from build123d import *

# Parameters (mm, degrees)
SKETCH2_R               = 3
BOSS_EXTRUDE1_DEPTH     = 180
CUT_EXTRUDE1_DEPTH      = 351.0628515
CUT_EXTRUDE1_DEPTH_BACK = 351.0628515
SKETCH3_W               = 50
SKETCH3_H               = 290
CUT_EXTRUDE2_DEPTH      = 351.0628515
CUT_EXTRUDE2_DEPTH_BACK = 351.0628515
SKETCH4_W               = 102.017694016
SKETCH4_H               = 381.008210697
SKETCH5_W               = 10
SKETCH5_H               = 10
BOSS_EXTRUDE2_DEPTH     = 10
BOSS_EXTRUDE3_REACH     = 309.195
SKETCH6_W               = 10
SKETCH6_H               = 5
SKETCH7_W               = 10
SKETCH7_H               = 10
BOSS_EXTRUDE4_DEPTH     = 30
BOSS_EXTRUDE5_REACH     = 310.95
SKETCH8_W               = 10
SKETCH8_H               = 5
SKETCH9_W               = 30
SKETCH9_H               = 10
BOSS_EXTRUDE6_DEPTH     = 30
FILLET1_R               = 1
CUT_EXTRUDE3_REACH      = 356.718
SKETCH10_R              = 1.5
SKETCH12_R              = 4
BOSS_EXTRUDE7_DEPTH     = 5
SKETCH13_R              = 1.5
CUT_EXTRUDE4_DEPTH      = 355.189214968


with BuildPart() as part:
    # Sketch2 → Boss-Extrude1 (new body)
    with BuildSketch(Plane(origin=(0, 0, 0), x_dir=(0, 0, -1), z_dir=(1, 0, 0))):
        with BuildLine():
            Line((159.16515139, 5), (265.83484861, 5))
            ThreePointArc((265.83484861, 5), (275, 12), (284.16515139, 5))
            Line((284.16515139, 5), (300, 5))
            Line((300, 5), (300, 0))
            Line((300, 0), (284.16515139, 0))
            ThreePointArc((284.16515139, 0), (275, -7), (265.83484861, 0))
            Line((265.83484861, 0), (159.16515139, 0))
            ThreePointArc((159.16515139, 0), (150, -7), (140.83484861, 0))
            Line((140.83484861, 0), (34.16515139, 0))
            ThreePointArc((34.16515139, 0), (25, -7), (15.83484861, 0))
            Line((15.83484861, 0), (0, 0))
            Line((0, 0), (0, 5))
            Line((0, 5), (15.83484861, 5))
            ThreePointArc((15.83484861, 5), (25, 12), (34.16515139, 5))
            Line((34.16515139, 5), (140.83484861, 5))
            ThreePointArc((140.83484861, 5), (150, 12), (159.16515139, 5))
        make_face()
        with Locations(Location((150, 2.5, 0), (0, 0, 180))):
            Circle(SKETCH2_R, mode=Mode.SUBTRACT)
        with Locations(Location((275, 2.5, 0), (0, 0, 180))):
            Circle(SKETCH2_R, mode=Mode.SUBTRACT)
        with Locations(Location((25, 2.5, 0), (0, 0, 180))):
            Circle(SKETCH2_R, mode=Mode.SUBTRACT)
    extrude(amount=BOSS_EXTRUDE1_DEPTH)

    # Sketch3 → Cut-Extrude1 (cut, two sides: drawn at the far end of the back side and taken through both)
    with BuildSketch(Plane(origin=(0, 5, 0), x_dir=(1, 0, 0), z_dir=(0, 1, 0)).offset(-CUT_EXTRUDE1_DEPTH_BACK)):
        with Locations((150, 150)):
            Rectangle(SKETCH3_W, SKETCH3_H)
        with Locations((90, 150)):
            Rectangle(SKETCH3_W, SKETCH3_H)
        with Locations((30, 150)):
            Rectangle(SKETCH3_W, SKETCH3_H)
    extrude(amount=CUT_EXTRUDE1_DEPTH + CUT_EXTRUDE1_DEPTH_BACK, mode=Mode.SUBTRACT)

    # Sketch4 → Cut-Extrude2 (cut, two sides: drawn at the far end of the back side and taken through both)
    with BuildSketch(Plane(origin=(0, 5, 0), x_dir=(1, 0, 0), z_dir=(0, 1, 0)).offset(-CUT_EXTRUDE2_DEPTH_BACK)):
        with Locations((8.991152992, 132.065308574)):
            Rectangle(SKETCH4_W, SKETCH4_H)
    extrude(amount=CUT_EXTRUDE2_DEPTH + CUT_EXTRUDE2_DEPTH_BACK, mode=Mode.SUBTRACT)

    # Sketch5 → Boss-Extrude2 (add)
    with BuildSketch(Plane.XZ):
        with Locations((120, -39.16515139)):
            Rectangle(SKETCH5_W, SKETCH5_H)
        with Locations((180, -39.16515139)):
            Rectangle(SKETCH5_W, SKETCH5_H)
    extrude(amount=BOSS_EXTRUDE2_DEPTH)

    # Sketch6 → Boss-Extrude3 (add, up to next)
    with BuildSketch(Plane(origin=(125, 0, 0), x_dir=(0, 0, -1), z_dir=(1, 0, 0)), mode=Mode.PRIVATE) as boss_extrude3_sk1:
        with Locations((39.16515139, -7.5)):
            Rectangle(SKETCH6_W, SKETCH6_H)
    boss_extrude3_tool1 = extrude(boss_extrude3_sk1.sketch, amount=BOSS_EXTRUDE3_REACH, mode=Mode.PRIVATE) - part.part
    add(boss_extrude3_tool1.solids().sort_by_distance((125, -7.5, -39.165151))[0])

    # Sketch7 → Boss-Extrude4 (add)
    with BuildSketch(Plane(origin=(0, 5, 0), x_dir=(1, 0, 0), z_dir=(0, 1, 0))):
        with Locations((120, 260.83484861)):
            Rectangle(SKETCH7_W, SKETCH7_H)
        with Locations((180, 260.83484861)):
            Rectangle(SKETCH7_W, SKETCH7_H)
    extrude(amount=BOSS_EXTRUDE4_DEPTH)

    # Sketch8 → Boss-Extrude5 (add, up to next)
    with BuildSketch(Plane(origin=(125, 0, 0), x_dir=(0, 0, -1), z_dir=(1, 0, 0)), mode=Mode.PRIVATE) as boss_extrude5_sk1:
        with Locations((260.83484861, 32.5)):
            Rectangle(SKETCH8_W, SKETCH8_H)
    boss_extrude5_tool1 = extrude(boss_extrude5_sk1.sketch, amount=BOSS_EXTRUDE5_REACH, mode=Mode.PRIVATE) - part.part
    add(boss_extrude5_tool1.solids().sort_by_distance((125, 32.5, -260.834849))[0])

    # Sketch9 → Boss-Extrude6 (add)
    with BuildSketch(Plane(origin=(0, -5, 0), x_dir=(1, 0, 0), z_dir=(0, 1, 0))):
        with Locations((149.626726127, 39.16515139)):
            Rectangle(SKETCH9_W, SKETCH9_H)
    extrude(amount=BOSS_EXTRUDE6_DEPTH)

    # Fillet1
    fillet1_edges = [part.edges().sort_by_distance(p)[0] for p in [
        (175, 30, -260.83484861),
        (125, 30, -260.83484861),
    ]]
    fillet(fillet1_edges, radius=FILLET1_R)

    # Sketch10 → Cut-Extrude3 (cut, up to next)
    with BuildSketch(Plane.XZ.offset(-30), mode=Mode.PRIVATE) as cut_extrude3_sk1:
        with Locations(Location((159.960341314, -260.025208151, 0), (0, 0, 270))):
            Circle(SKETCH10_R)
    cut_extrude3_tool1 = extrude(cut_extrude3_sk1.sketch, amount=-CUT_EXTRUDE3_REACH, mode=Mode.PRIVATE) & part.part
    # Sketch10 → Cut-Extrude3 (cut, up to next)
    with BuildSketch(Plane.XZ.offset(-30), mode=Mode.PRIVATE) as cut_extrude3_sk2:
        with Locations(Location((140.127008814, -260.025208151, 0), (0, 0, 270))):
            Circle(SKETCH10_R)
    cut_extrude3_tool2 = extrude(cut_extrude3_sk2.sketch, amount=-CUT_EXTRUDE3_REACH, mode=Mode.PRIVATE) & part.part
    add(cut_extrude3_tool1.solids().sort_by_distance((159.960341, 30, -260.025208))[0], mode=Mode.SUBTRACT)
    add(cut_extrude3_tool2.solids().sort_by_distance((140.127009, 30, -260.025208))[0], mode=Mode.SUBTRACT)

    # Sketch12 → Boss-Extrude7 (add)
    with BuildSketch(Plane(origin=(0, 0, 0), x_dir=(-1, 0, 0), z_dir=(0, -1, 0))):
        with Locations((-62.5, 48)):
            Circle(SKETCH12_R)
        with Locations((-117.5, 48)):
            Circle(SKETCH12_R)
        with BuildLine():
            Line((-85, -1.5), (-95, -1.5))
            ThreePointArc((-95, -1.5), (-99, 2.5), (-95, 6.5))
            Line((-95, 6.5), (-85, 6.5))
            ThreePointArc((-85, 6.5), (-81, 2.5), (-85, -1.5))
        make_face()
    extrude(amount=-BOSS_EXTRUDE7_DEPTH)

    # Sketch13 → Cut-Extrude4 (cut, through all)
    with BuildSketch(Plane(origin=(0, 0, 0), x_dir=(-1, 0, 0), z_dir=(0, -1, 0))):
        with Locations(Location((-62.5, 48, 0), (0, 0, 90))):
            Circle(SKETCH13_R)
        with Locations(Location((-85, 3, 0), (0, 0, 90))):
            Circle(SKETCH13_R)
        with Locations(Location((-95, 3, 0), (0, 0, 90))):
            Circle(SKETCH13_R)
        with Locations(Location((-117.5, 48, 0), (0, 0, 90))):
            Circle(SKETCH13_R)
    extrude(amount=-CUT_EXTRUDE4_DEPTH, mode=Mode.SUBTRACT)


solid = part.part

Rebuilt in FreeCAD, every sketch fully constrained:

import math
import FreeCAD as App
import Part
import Sketcher
Q = App.Units.Quantity


def edges_at(feature, points):
    """Names of the edges that pass closest to the given points."""
    edges = feature.Shape.Edges
    near = lambda p: min(range(len(edges)), key=lambda i: edges[i].distToShape(Part.Vertex(*p))[0])
    return sorted({f"Edge{near(p) + 1}" for p in points})

doc = App.newDocument("Part")
body = doc.addObject("PartDesign::Body", "Body")

sketch1 = body.newObject("Sketcher::SketchObject", "Sketch")
sketch1.AttachmentSupport = (doc.getObject("YZ_Plane"), [""])
sketch1.MapMode = "FlatFace"
sketch1.addGeometry(Part.LineSegment(App.Vector(5, -265.8, 0), App.Vector(5, -159.2, 0)), False)
sketch1.addGeometry(Part.ArcOfCircle(Part.Circle(App.Vector(2.5, -150, 0), App.Vector(0, 0, 1), 9.5), math.radians(-75), math.radians(75)), False)
sketch1.addGeometry(Part.LineSegment(App.Vector(5, -140.8, 0), App.Vector(5, -34.2, 0)), False)
sketch1.addGeometry(Part.ArcOfCircle(Part.Circle(App.Vector(2.5, -25, 0), App.Vector(0, 0, 1), 9.5), math.radians(-75), math.radians(75)), False)
sketch1.addGeometry(Part.LineSegment(App.Vector(5, -15.8, 0), App.Vector(5, 0, 0)), False)
sketch1.addGeometry(Part.LineSegment(App.Vector(5, 0, 0), App.Vector(0, 0, 0)), False)
sketch1.addGeometry(Part.LineSegment(App.Vector(0, 0, 0), App.Vector(0, -15.8, 0)), False)
sketch1.addGeometry(Part.ArcOfCircle(Part.Circle(App.Vector(2.5, -25, 0), App.Vector(0, 0, 1), 9.5), math.radians(105), math.radians(255)), False)
sketch1.addGeometry(Part.LineSegment(App.Vector(0, -34.2, 0), App.Vector(0, -140.8, 0)), False)
sketch1.addGeometry(Part.ArcOfCircle(Part.Circle(App.Vector(2.5, -150, 0), App.Vector(0, 0, 1), 9.5), math.radians(105), math.radians(255)), False)
sketch1.addGeometry(Part.LineSegment(App.Vector(0, -159.2, 0), App.Vector(0, -265.8, 0)), False)
sketch1.addGeometry(Part.ArcOfCircle(Part.Circle(App.Vector(2.5, -275, 0), App.Vector(0, 0, 1), 9.5), math.radians(105), math.radians(255)), False)
sketch1.addGeometry(Part.LineSegment(App.Vector(0, -284.2, 0), App.Vector(0, -300, 0)), False)
sketch1.addGeometry(Part.LineSegment(App.Vector(0, -300, 0), App.Vector(5, -300, 0)), False)
sketch1.addGeometry(Part.LineSegment(App.Vector(5, -300, 0), App.Vector(5, -284.2, 0)), False)
sketch1.addGeometry(Part.ArcOfCircle(Part.Circle(App.Vector(2.5, -275, 0), App.Vector(0, 0, 1), 9.5), math.radians(-75), math.radians(75)), False)
sketch1.addGeometry(Part.Circle(App.Vector(2.5, -275, 0), App.Vector(0, 0, 1), 3), False)
sketch1.addGeometry(Part.Circle(App.Vector(2.5, -150, 0), App.Vector(0, 0, 1), 3), False)
sketch1.addGeometry(Part.Circle(App.Vector(2.5, -25, 0), App.Vector(0, 0, 1), 3), False)
sketch1.addConstraint(Sketcher.Constraint("Coincident", 0, 2, 1, 1))
sketch1.addConstraint(Sketcher.Constraint("Coincident", 1, 2, 2, 1))
sketch1.addConstraint(Sketcher.Constraint("Coincident", 2, 2, 3, 1))
sketch1.addConstraint(Sketcher.Constraint("Coincident", 3, 2, 4, 1))
sketch1.addConstraint(Sketcher.Constraint("Coincident", 4, 2, 5, 1))
sketch1.addConstraint(Sketcher.Constraint("Coincident", 5, 2, 6, 1))
sketch1.addConstraint(Sketcher.Constraint("Coincident", 6, 2, 7, 1))
sketch1.addConstraint(Sketcher.Constraint("Coincident", 7, 2, 8, 1))
sketch1.addConstraint(Sketcher.Constraint("Coincident", 8, 2, 9, 1))
sketch1.addConstraint(Sketcher.Constraint("Coincident", 9, 2, 10, 1))
sketch1.addConstraint(Sketcher.Constraint("Coincident", 10, 2, 11, 1))
sketch1.addConstraint(Sketcher.Constraint("Coincident", 11, 2, 12, 1))
sketch1.addConstraint(Sketcher.Constraint("Coincident", 12, 2, 13, 1))
sketch1.addConstraint(Sketcher.Constraint("Coincident", 13, 2, 14, 1))
sketch1.addConstraint(Sketcher.Constraint("Coincident", 14, 2, 15, 1))
sketch1.addConstraint(Sketcher.Constraint("Coincident", 15, 2, 0, 1))
sketch1.addConstraint(Sketcher.Constraint("Vertical", 0))
sketch1.addConstraint(Sketcher.Constraint("Vertical", 2))
sketch1.addConstraint(Sketcher.Constraint("Vertical", 4))
sketch1.addConstraint(Sketcher.Constraint("Horizontal", 5))
sketch1.addConstraint(Sketcher.Constraint("Vertical", 6))
sketch1.addConstraint(Sketcher.Constraint("Vertical", 8))
sketch1.addConstraint(Sketcher.Constraint("Vertical", 10))
sketch1.addConstraint(Sketcher.Constraint("Vertical", 12))
sketch1.addConstraint(Sketcher.Constraint("Horizontal", 13))
sketch1.addConstraint(Sketcher.Constraint("Vertical", 14))
sketch1.addConstraint(Sketcher.Constraint("Coincident", 5, 2, -1, 1))
sketch1.addConstraint(Sketcher.Constraint("Coincident", 7, 3, 3, 3))
sketch1.addConstraint(Sketcher.Constraint("Coincident", 9, 3, 1, 3))
sketch1.addConstraint(Sketcher.Constraint("Coincident", 15, 3, 11, 3))
sketch1.addConstraint(Sketcher.Constraint("Coincident", 16, 3, 11, 3))
sketch1.addConstraint(Sketcher.Constraint("Coincident", 17, 3, 1, 3))
sketch1.addConstraint(Sketcher.Constraint("Coincident", 18, 3, 3, 3))
sketch1.addConstraint(Sketcher.Constraint("Equal", 1, 3))
sketch1.addConstraint(Sketcher.Constraint("Equal", 3, 7))
sketch1.addConstraint(Sketcher.Constraint("Equal", 7, 9))
sketch1.addConstraint(Sketcher.Constraint("Equal", 9, 11))
sketch1.addConstraint(Sketcher.Constraint("Equal", 11, 15))
sketch1.addConstraint(Sketcher.Constraint("Equal", 16, 17))
sketch1.addConstraint(Sketcher.Constraint("Equal", 17, 18))
sketch1.addConstraint(Sketcher.Constraint("PointOnObject", 7, 2, -2))
sketch1.addConstraint(Sketcher.Constraint("PointOnObject", 9, 2, -2))
sketch1.addConstraint(Sketcher.Constraint("PointOnObject", 11, 2, -2))
sketch1.addConstraint(Sketcher.Constraint("Horizontal", 3, 2, 6, 2))
sketch1.addConstraint(Sketcher.Constraint("Horizontal", 2, 2, 7, 2))
sketch1.addConstraint(Sketcher.Constraint("Horizontal", 1, 2, 8, 2))
sketch1.addConstraint(Sketcher.Constraint("Horizontal", 0, 2, 9, 2))
sketch1.addConstraint(Sketcher.Constraint("Horizontal", 11, 2, 14, 2))
sketch1.addConstraint(Sketcher.Constraint("Horizontal", 10, 2, 15, 2))
sketch1.addConstraint(Sketcher.Constraint("Equal", 0, 2))
sketch1.addConstraint(Sketcher.Constraint("Equal", 6, 12))
sketch1.addConstraint(Sketcher.Constraint("Diameter", 16, Q("6 mm")))
sketch1.addConstraint(Sketcher.Constraint("Radius", 1, Q("9.5 mm")))
sketch1.addConstraint(Sketcher.Constraint("DistanceX", 5, 2, 5, 1, Q("5 mm")))
sketch1.addConstraint(Sketcher.Constraint("DistanceY", 1, 3, -1, 1, Q("150 mm")))
sketch1.addConstraint(Sketcher.Constraint("DistanceY", 3, 3, -1, 1, Q("25 mm")))
pad1 = body.newObject("PartDesign::Pad", "Pad")
pad1.Profile = sketch1
pad1.Length = 180

sketch2 = body.newObject("Sketcher::SketchObject", "Sketch001")
sketch2.AttachmentSupport = (doc.getObject("XZ_Plane"), [""])
sketch2.MapMode = "FlatFace"
sketch2.AttachmentOffset = App.Placement(App.Vector(0, 0, -5), App.Rotation())
sketch2.addGeometry(Part.LineSegment(App.Vector(125, -295, 0), App.Vector(125, -5, 0)), False)
sketch2.addGeometry(Part.LineSegment(App.Vector(125, -5, 0), App.Vector(175, -5, 0)), False)
sketch2.addGeometry(Part.LineSegment(App.Vector(175, -5, 0), App.Vector(175, -295, 0)), False)
sketch2.addGeometry(Part.LineSegment(App.Vector(175, -295, 0), App.Vector(125, -295, 0)), False)
sketch2.addGeometry(Part.LineSegment(App.Vector(65, -295, 0), App.Vector(65, -5, 0)), False)
sketch2.addGeometry(Part.LineSegment(App.Vector(65, -5, 0), App.Vector(115, -5, 0)), False)
sketch2.addGeometry(Part.LineSegment(App.Vector(115, -5, 0), App.Vector(115, -295, 0)), False)
sketch2.addGeometry(Part.LineSegment(App.Vector(115, -295, 0), App.Vector(65, -295, 0)), False)
sketch2.addGeometry(Part.LineSegment(App.Vector(5, -295, 0), App.Vector(5, -5, 0)), False)
sketch2.addGeometry(Part.LineSegment(App.Vector(5, -5, 0), App.Vector(55, -5, 0)), False)
sketch2.addGeometry(Part.LineSegment(App.Vector(55, -5, 0), App.Vector(55, -295, 0)), False)
sketch2.addGeometry(Part.LineSegment(App.Vector(55, -295, 0), App.Vector(5, -295, 0)), False)
sketch2.addConstraint(Sketcher.Constraint("Coincident", 0, 2, 1, 1))
sketch2.addConstraint(Sketcher.Constraint("Coincident", 1, 2, 2, 1))
sketch2.addConstraint(Sketcher.Constraint("Coincident", 2, 2, 3, 1))
sketch2.addConstraint(Sketcher.Constraint("Coincident", 3, 2, 0, 1))
sketch2.addConstraint(Sketcher.Constraint("Coincident", 4, 2, 5, 1))
sketch2.addConstraint(Sketcher.Constraint("Coincident", 5, 2, 6, 1))
sketch2.addConstraint(Sketcher.Constraint("Coincident", 6, 2, 7, 1))
sketch2.addConstraint(Sketcher.Constraint("Coincident", 7, 2, 4, 1))
sketch2.addConstraint(Sketcher.Constraint("Coincident", 8, 2, 9, 1))
sketch2.addConstraint(Sketcher.Constraint("Coincident", 9, 2, 10, 1))
sketch2.addConstraint(Sketcher.Constraint("Coincident", 10, 2, 11, 1))
sketch2.addConstraint(Sketcher.Constraint("Coincident", 11, 2, 8, 1))
sketch2.addConstraint(Sketcher.Constraint("Vertical", 0))
sketch2.addConstraint(Sketcher.Constraint("Horizontal", 1))
sketch2.addConstraint(Sketcher.Constraint("Vertical", 2))
sketch2.addConstraint(Sketcher.Constraint("Horizontal", 3))
sketch2.addConstraint(Sketcher.Constraint("Vertical", 4))
sketch2.addConstraint(Sketcher.Constraint("Horizontal", 5))
sketch2.addConstraint(Sketcher.Constraint("Vertical", 6))
sketch2.addConstraint(Sketcher.Constraint("Horizontal", 7))
sketch2.addConstraint(Sketcher.Constraint("Vertical", 8))
sketch2.addConstraint(Sketcher.Constraint("Horizontal", 9))
sketch2.addConstraint(Sketcher.Constraint("Vertical", 10))
sketch2.addConstraint(Sketcher.Constraint("Horizontal", 11))
sketch2.addConstraint(Sketcher.Constraint("Horizontal", 1, 2, 4, 2))
sketch2.addConstraint(Sketcher.Constraint("Horizontal", 3, 2, 6, 2))
sketch2.addConstraint(Sketcher.Constraint("Horizontal", 5, 2, 8, 2))
sketch2.addConstraint(Sketcher.Constraint("Horizontal", 7, 2, 10, 2))
sketch2.addConstraint(Sketcher.Constraint("Equal", 3, 5))
sketch2.addConstraint(Sketcher.Constraint("Equal", 7, 9))
sketch2.addConstraint(Sketcher.Constraint("DistanceX", 1, 1, 1, 2, Q("50 mm")))
sketch2.addConstraint(Sketcher.Constraint("DistanceY", 0, 1, 0, 2, Q("290 mm")))
sketch2.addConstraint(Sketcher.Constraint("DistanceX", -1, 1, 0, 2, Q("125 mm")))
sketch2.addConstraint(Sketcher.Constraint("DistanceY", 0, 2, -1, 1, Q("5 mm")))
sketch2.addConstraint(Sketcher.Constraint("DistanceX", -1, 1, 4, 2, Q("65 mm")))
sketch2.addConstraint(Sketcher.Constraint("DistanceX", -1, 1, 8, 2, Q("5 mm")))
pocket1 = body.newObject("PartDesign::Pocket", "Pocket")
pocket1.Profile = sketch2
pocket1.Type = "ThroughAll"
pocket1.Midplane = True

sketch3 = body.newObject("Sketcher::SketchObject", "Sketch002")
sketch3.AttachmentSupport = (doc.getObject("XZ_Plane"), [""])
sketch3.MapMode = "FlatFace"
sketch3.AttachmentOffset = App.Placement(App.Vector(0, 0, -5), App.Rotation())
sketch3.addGeometry(Part.LineSegment(App.Vector(-42, -323, 0), App.Vector(-42, 58, 0)), False)
sketch3.addGeometry(Part.LineSegment(App.Vector(-42, 58, 0), App.Vector(60, 58, 0)), False)
sketch3.addGeometry(Part.LineSegment(App.Vector(60, 58, 0), App.Vector(60, -323, 0)), False)
sketch3.addGeometry(Part.LineSegment(App.Vector(60, -323, 0), App.Vector(-42, -323, 0)), False)
sketch3.addConstraint(Sketcher.Constraint("Coincident", 0, 2, 1, 1))
sketch3.addConstraint(Sketcher.Constraint("Coincident", 1, 2, 2, 1))
sketch3.addConstraint(Sketcher.Constraint("Coincident", 2, 2, 3, 1))
sketch3.addConstraint(Sketcher.Constraint("Coincident", 3, 2, 0, 1))
sketch3.addConstraint(Sketcher.Constraint("Vertical", 0))
sketch3.addConstraint(Sketcher.Constraint("Horizontal", 1))
sketch3.addConstraint(Sketcher.Constraint("Vertical", 2))
sketch3.addConstraint(Sketcher.Constraint("Horizontal", 3))
sketch3.addConstraint(Sketcher.Constraint("DistanceX", -1, 1, 1, 2, Q("60 mm")))
sketch3.addConstraint(Sketcher.Constraint("DistanceY", 0, 1, 0, 2, Q("381.008211 mm")))
sketch3.addConstraint(Sketcher.Constraint("DistanceX", 1, 1, 1, 2, Q("102.017694 mm")))
sketch3.addConstraint(Sketcher.Constraint("DistanceY", -1, 1, 0, 2, Q("58.438797 mm")))
pocket2 = body.newObject("PartDesign::Pocket", "Pocket001")
pocket2.Profile = sketch3
pocket2.Type = "ThroughAll"
pocket2.Midplane = True

sketch4 = body.newObject("Sketcher::SketchObject", "Sketch003")
sketch4.AttachmentSupport = (doc.getObject("XZ_Plane"), [""])
sketch4.MapMode = "FlatFace"
sketch4.addGeometry(Part.LineSegment(App.Vector(115, -34, 0), App.Vector(115, -44, 0)), False)
sketch4.addGeometry(Part.LineSegment(App.Vector(115, -44, 0), App.Vector(125, -44, 0)), False)
sketch4.addGeometry(Part.LineSegment(App.Vector(125, -44, 0), App.Vector(125, -34, 0)), False)
sketch4.addGeometry(Part.LineSegment(App.Vector(125, -34, 0), App.Vector(115, -34, 0)), False)
sketch4.addGeometry(Part.LineSegment(App.Vector(175, -34, 0), App.Vector(175, -44, 0)), False)
sketch4.addGeometry(Part.LineSegment(App.Vector(175, -44, 0), App.Vector(185, -44, 0)), False)
sketch4.addGeometry(Part.LineSegment(App.Vector(185, -44, 0), App.Vector(185, -34, 0)), False)
sketch4.addGeometry(Part.LineSegment(App.Vector(185, -34, 0), App.Vector(175, -34, 0)), False)
sketch4.addConstraint(Sketcher.Constraint("Coincident", 0, 2, 1, 1))
sketch4.addConstraint(Sketcher.Constraint("Coincident", 1, 2, 2, 1))
sketch4.addConstraint(Sketcher.Constraint("Coincident", 2, 2, 3, 1))
sketch4.addConstraint(Sketcher.Constraint("Coincident", 3, 2, 0, 1))
sketch4.addConstraint(Sketcher.Constraint("Coincident", 4, 2, 5, 1))
sketch4.addConstraint(Sketcher.Constraint("Coincident", 5, 2, 6, 1))
sketch4.addConstraint(Sketcher.Constraint("Coincident", 6, 2, 7, 1))
sketch4.addConstraint(Sketcher.Constraint("Coincident", 7, 2, 4, 1))
sketch4.addConstraint(Sketcher.Constraint("Vertical", 0))
sketch4.addConstraint(Sketcher.Constraint("Horizontal", 1))
sketch4.addConstraint(Sketcher.Constraint("Vertical", 2))
sketch4.addConstraint(Sketcher.Constraint("Horizontal", 3))
sketch4.addConstraint(Sketcher.Constraint("Vertical", 4))
sketch4.addConstraint(Sketcher.Constraint("Horizontal", 5))
sketch4.addConstraint(Sketcher.Constraint("Vertical", 6))
sketch4.addConstraint(Sketcher.Constraint("Horizontal", 7))
sketch4.addConstraint(Sketcher.Constraint("Horizontal", 1, 2, 4, 2))
sketch4.addConstraint(Sketcher.Constraint("Horizontal", 3, 2, 6, 2))
sketch4.addConstraint(Sketcher.Constraint("Equal", 3, 5))
sketch4.addConstraint(Sketcher.Constraint("Equal", 7, 0))
sketch4.addConstraint(Sketcher.Constraint("DistanceX", 1, 1, 1, 2, Q("10 mm")))
sketch4.addConstraint(Sketcher.Constraint("DistanceX", -1, 1, 0, 2, Q("115 mm")))
sketch4.addConstraint(Sketcher.Constraint("DistanceX", -1, 1, 4, 2, Q("175 mm")))
sketch4.addConstraint(Sketcher.Constraint("DistanceY", 0, 2, -1, 1, Q("44.165151 mm")))
pad2 = body.newObject("PartDesign::Pad", "Pad001")
pad2.Profile = sketch4
pad2.Length = 10

sketch5 = body.newObject("Sketcher::SketchObject", "Sketch004")
sketch5.AttachmentSupport = (doc.getObject("YZ_Plane"), [""])
sketch5.MapMode = "FlatFace"
sketch5.AttachmentOffset = App.Placement(App.Vector(0, 0, 125), App.Rotation())
sketch5.addGeometry(Part.LineSegment(App.Vector(-5, -34, 0), App.Vector(-10, -34, 0)), False)
sketch5.addGeometry(Part.LineSegment(App.Vector(-10, -34, 0), App.Vector(-10, -44, 0)), False)
sketch5.addGeometry(Part.LineSegment(App.Vector(-10, -44, 0), App.Vector(-5, -44, 0)), False)
sketch5.addGeometry(Part.LineSegment(App.Vector(-5, -44, 0), App.Vector(-5, -34, 0)), False)
sketch5.addConstraint(Sketcher.Constraint("Coincident", 0, 2, 1, 1))
sketch5.addConstraint(Sketcher.Constraint("Coincident", 1, 2, 2, 1))
sketch5.addConstraint(Sketcher.Constraint("Coincident", 2, 2, 3, 1))
sketch5.addConstraint(Sketcher.Constraint("Coincident", 3, 2, 0, 1))
sketch5.addConstraint(Sketcher.Constraint("Horizontal", 0))
sketch5.addConstraint(Sketcher.Constraint("Vertical", 1))
sketch5.addConstraint(Sketcher.Constraint("Horizontal", 2))
sketch5.addConstraint(Sketcher.Constraint("Vertical", 3))
sketch5.addConstraint(Sketcher.Constraint("DistanceX", 0, 2, 0, 1, Q("5 mm")))
sketch5.addConstraint(Sketcher.Constraint("DistanceY", 1, 2, 1, 1, Q("10 mm")))
sketch5.addConstraint(Sketcher.Constraint("DistanceX", 0, 2, -1, 1, Q("10 mm")))
sketch5.addConstraint(Sketcher.Constraint("DistanceY", 0, 2, -1, 1, Q("34.165151 mm")))
pad3 = body.newObject("PartDesign::Pad", "Pad002")
pad3.Profile = sketch5
pad3.Type = "UpToFirst"

sketch6 = body.newObject("Sketcher::SketchObject", "Sketch005")
sketch6.AttachmentSupport = (doc.getObject("XZ_Plane"), [""])
sketch6.MapMode = "FlatFace"
sketch6.AttachmentOffset = App.Placement(App.Vector(0, 0, -5), App.Rotation())
sketch6.addGeometry(Part.LineSegment(App.Vector(115, -266, 0), App.Vector(115, -256, 0)), False)
sketch6.addGeometry(Part.LineSegment(App.Vector(115, -256, 0), App.Vector(125, -256, 0)), False)
sketch6.addGeometry(Part.LineSegment(App.Vector(125, -256, 0), App.Vector(125, -266, 0)), False)
sketch6.addGeometry(Part.LineSegment(App.Vector(125, -266, 0), App.Vector(115, -266, 0)), False)
sketch6.addGeometry(Part.LineSegment(App.Vector(175, -266, 0), App.Vector(175, -256, 0)), False)
sketch6.addGeometry(Part.LineSegment(App.Vector(175, -256, 0), App.Vector(185, -256, 0)), False)
sketch6.addGeometry(Part.LineSegment(App.Vector(185, -256, 0), App.Vector(185, -266, 0)), False)
sketch6.addGeometry(Part.LineSegment(App.Vector(185, -266, 0), App.Vector(175, -266, 0)), False)
sketch6.addConstraint(Sketcher.Constraint("Coincident", 0, 2, 1, 1))
sketch6.addConstraint(Sketcher.Constraint("Coincident", 1, 2, 2, 1))
sketch6.addConstraint(Sketcher.Constraint("Coincident", 2, 2, 3, 1))
sketch6.addConstraint(Sketcher.Constraint("Coincident", 3, 2, 0, 1))
sketch6.addConstraint(Sketcher.Constraint("Coincident", 4, 2, 5, 1))
sketch6.addConstraint(Sketcher.Constraint("Coincident", 5, 2, 6, 1))
sketch6.addConstraint(Sketcher.Constraint("Coincident", 6, 2, 7, 1))
sketch6.addConstraint(Sketcher.Constraint("Coincident", 7, 2, 4, 1))
sketch6.addConstraint(Sketcher.Constraint("Vertical", 0))
sketch6.addConstraint(Sketcher.Constraint("Horizontal", 1))
sketch6.addConstraint(Sketcher.Constraint("Vertical", 2))
sketch6.addConstraint(Sketcher.Constraint("Horizontal", 3))
sketch6.addConstraint(Sketcher.Constraint("Vertical", 4))
sketch6.addConstraint(Sketcher.Constraint("Horizontal", 5))
sketch6.addConstraint(Sketcher.Constraint("Vertical", 6))
sketch6.addConstraint(Sketcher.Constraint("Horizontal", 7))
sketch6.addConstraint(Sketcher.Constraint("Horizontal", 1, 2, 4, 2))
sketch6.addConstraint(Sketcher.Constraint("Horizontal", 3, 2, 6, 2))
sketch6.addConstraint(Sketcher.Constraint("Equal", 3, 5))
sketch6.addConstraint(Sketcher.Constraint("Equal", 7, 0))
sketch6.addConstraint(Sketcher.Constraint("DistanceX", 1, 1, 1, 2, Q("10 mm")))
sketch6.addConstraint(Sketcher.Constraint("DistanceX", -1, 1, 0, 2, Q("115 mm")))
sketch6.addConstraint(Sketcher.Constraint("DistanceX", -1, 1, 4, 2, Q("175 mm")))
sketch6.addConstraint(Sketcher.Constraint("DistanceY", 0, 2, -1, 1, Q("255.834849 mm")))
pad4 = body.newObject("PartDesign::Pad", "Pad003")
pad4.Profile = sketch6
pad4.Length = 30
pad4.Reversed = True

sketch7 = body.newObject("Sketcher::SketchObject", "Sketch006")
sketch7.AttachmentSupport = (doc.getObject("YZ_Plane"), [""])
sketch7.MapMode = "FlatFace"
sketch7.AttachmentOffset = App.Placement(App.Vector(0, 0, 125), App.Rotation())
sketch7.addGeometry(Part.LineSegment(App.Vector(35, -256, 0), App.Vector(30, -256, 0)), False)
sketch7.addGeometry(Part.LineSegment(App.Vector(30, -256, 0), App.Vector(30, -266, 0)), False)
sketch7.addGeometry(Part.LineSegment(App.Vector(30, -266, 0), App.Vector(35, -266, 0)), False)
sketch7.addGeometry(Part.LineSegment(App.Vector(35, -266, 0), App.Vector(35, -256, 0)), False)
sketch7.addConstraint(Sketcher.Constraint("Coincident", 0, 2, 1, 1))
sketch7.addConstraint(Sketcher.Constraint("Coincident", 1, 2, 2, 1))
sketch7.addConstraint(Sketcher.Constraint("Coincident", 2, 2, 3, 1))
sketch7.addConstraint(Sketcher.Constraint("Coincident", 3, 2, 0, 1))
sketch7.addConstraint(Sketcher.Constraint("Horizontal", 0))
sketch7.addConstraint(Sketcher.Constraint("Vertical", 1))
sketch7.addConstraint(Sketcher.Constraint("Horizontal", 2))
sketch7.addConstraint(Sketcher.Constraint("Vertical", 3))
sketch7.addConstraint(Sketcher.Constraint("DistanceX", 0, 2, 0, 1, Q("5 mm")))
sketch7.addConstraint(Sketcher.Constraint("DistanceY", 1, 2, 1, 1, Q("10 mm")))
sketch7.addConstraint(Sketcher.Constraint("DistanceX", -1, 1, 0, 2, Q("30 mm")))
sketch7.addConstraint(Sketcher.Constraint("DistanceY", 0, 2, -1, 1, Q("255.834849 mm")))
pad5 = body.newObject("PartDesign::Pad", "Pad004")
pad5.Profile = sketch7
pad5.Type = "UpToFirst"

sketch8 = body.newObject("Sketcher::SketchObject", "Sketch007")
sketch8.AttachmentSupport = (doc.getObject("XZ_Plane"), [""])
sketch8.MapMode = "FlatFace"
sketch8.AttachmentOffset = App.Placement(App.Vector(0, 0, 5), App.Rotation())
sketch8.addGeometry(Part.LineSegment(App.Vector(135, -44, 0), App.Vector(135, -34, 0)), False)
sketch8.addGeometry(Part.LineSegment(App.Vector(135, -34, 0), App.Vector(165, -34, 0)), False)
sketch8.addGeometry(Part.LineSegment(App.Vector(165, -34, 0), App.Vector(165, -44, 0)), False)
sketch8.addGeometry(Part.LineSegment(App.Vector(165, -44, 0), App.Vector(135, -44, 0)), False)
sketch8.addConstraint(Sketcher.Constraint("Coincident", 0, 2, 1, 1))
sketch8.addConstraint(Sketcher.Constraint("Coincident", 1, 2, 2, 1))
sketch8.addConstraint(Sketcher.Constraint("Coincident", 2, 2, 3, 1))
sketch8.addConstraint(Sketcher.Constraint("Coincident", 3, 2, 0, 1))
sketch8.addConstraint(Sketcher.Constraint("Vertical", 0))
sketch8.addConstraint(Sketcher.Constraint("Horizontal", 1))
sketch8.addConstraint(Sketcher.Constraint("Vertical", 2))
sketch8.addConstraint(Sketcher.Constraint("Horizontal", 3))
sketch8.addConstraint(Sketcher.Constraint("DistanceX", 1, 1, 1, 2, Q("30 mm")))
sketch8.addConstraint(Sketcher.Constraint("DistanceY", 0, 1, 0, 2, Q("10 mm")))
sketch8.addConstraint(Sketcher.Constraint("DistanceY", 0, 2, -1, 1, Q("34.165151 mm")))
sketch8.addConstraint(Sketcher.Constraint("DistanceX", -1, 1, 0, 2, Q("134.626726 mm")))
pad6 = body.newObject("PartDesign::Pad", "Pad005")
pad6.Profile = sketch8
pad6.Length = 30
pad6.Reversed = True
doc.recompute()

fillet = body.newObject("PartDesign::Fillet", "Fillet")
fillet.Base = (pad6, edges_at(pad6, [(175, 30, -260.835), (125, 30, -260.835)]))
fillet.Radius = 1

sketch9 = body.newObject("Sketcher::SketchObject", "Sketch008")
sketch9.AttachmentSupport = (doc.getObject("XZ_Plane"), [""])
sketch9.MapMode = "FlatFace"
sketch9.AttachmentOffset = App.Placement(App.Vector(0, 0, -30), App.Rotation())
sketch9.addGeometry(Part.Circle(App.Vector(160, -260, 0), App.Vector(0, 0, 1), 1.5), False)
sketch9.addConstraint(Sketcher.Constraint("Diameter", 0, Q("3 mm")))
sketch9.addConstraint(Sketcher.Constraint("DistanceX", -1, 1, 0, 3, Q("159.960341 mm")))
sketch9.addConstraint(Sketcher.Constraint("DistanceY", 0, 3, -1, 1, Q("260.025208 mm")))
pocket3 = body.newObject("PartDesign::Pocket", "Pocket002")
pocket3.Profile = sketch9
pocket3.Type = "UpToFirst"

sketch10 = body.newObject("Sketcher::SketchObject", "Sketch009")
sketch10.AttachmentSupport = (doc.getObject("XZ_Plane"), [""])
sketch10.MapMode = "FlatFace"
sketch10.AttachmentOffset = App.Placement(App.Vector(0, 0, -30), App.Rotation())
sketch10.addGeometry(Part.Circle(App.Vector(140.1, -260, 0), App.Vector(0, 0, 1), 1.5), False)
sketch10.addConstraint(Sketcher.Constraint("Diameter", 0, Q("3 mm")))
sketch10.addConstraint(Sketcher.Constraint("DistanceX", -1, 1, 0, 3, Q("140.127009 mm")))
sketch10.addConstraint(Sketcher.Constraint("DistanceY", 0, 3, -1, 1, Q("260.025208 mm")))
pocket4 = body.newObject("PartDesign::Pocket", "Pocket003")
pocket4.Profile = sketch10
pocket4.Type = "UpToFirst"

sketch11 = body.newObject("Sketcher::SketchObject", "Sketch010")
sketch11.AttachmentSupport = (doc.getObject("XZ_Plane"), [""])
sketch11.MapMode = "FlatFace"
sketch11.addGeometry(Part.Circle(App.Vector(62.5, -48, 0), App.Vector(0, 0, 1), 4), False)
sketch11.addGeometry(Part.Circle(App.Vector(117.5, -48, 0), App.Vector(0, 0, 1), 4), False)
sketch11.addGeometry(Part.LineSegment(App.Vector(95, 1.5, 0), App.Vector(85, 1.5, 0)), False)
sketch11.addGeometry(Part.ArcOfCircle(Part.Circle(App.Vector(85, -2.5, 0), App.Vector(0, 0, 1), 4), math.radians(90), math.radians(270)), False)
sketch11.addGeometry(Part.LineSegment(App.Vector(85, -6.5, 0), App.Vector(95, -6.5, 0)), False)
sketch11.addGeometry(Part.ArcOfCircle(Part.Circle(App.Vector(95, -2.5, 0), App.Vector(0, 0, 1), 4), math.radians(-90), math.radians(90)), False)
sketch11.addConstraint(Sketcher.Constraint("Tangent", 2, 2, 3, 1))
sketch11.addConstraint(Sketcher.Constraint("Tangent", 3, 2, 4, 1))
sketch11.addConstraint(Sketcher.Constraint("Tangent", 4, 2, 5, 1))
sketch11.addConstraint(Sketcher.Constraint("Tangent", 5, 2, 2, 1))
sketch11.addConstraint(Sketcher.Constraint("Horizontal", 2))
sketch11.addConstraint(Sketcher.Constraint("Horizontal", 4))
sketch11.addConstraint(Sketcher.Constraint("Equal", 0, 1))
sketch11.addConstraint(Sketcher.Constraint("Equal", 1, 3))
sketch11.addConstraint(Sketcher.Constraint("Horizontal", 0, 3, 1, 3))
sketch11.addConstraint(Sketcher.Constraint("Diameter", 0, Q("8 mm")))
sketch11.addConstraint(Sketcher.Constraint("DistanceX", 2, 2, 2, 1, Q("10 mm")))
sketch11.addConstraint(Sketcher.Constraint("DistanceY", 0, 3, -1, 1, Q("48 mm")))
sketch11.addConstraint(Sketcher.Constraint("DistanceX", -1, 1, 3, 3, Q("85 mm")))
sketch11.addConstraint(Sketcher.Constraint("DistanceX", 0, 3, 1, 3, Q("55 mm")))
sketch11.addConstraint(Sketcher.Constraint("DistanceX", -1, 1, 0, 3, Q("62.5 mm")))
sketch11.addConstraint(Sketcher.Constraint("DistanceY", 3, 3, -1, 1, Q("2.5 mm")))
pad7 = body.newObject("PartDesign::Pad", "Pad006")
pad7.Profile = sketch11
pad7.Length = 5
pad7.Reversed = True

sketch12 = body.newObject("Sketcher::SketchObject", "Sketch011")
sketch12.AttachmentSupport = (doc.getObject("XZ_Plane"), [""])
sketch12.MapMode = "FlatFace"
sketch12.addGeometry(Part.Circle(App.Vector(62.5, -48, 0), App.Vector(0, 0, 1), 1.5), False)
sketch12.addGeometry(Part.Circle(App.Vector(85, -3, 0), App.Vector(0, 0, 1), 1.5), False)
sketch12.addGeometry(Part.Circle(App.Vector(95, -3, 0), App.Vector(0, 0, 1), 1.5), False)
sketch12.addGeometry(Part.Circle(App.Vector(117.5, -48, 0), App.Vector(0, 0, 1), 1.5), False)
sketch12.addConstraint(Sketcher.Constraint("Equal", 0, 1))
sketch12.addConstraint(Sketcher.Constraint("Equal", 1, 2))
sketch12.addConstraint(Sketcher.Constraint("Equal", 2, 3))
sketch12.addConstraint(Sketcher.Constraint("Horizontal", 1, 3, 2, 3))
sketch12.addConstraint(Sketcher.Constraint("Horizontal", 0, 3, 3, 3))
sketch12.addConstraint(Sketcher.Constraint("Diameter", 0, Q("3 mm")))
sketch12.addConstraint(Sketcher.Constraint("DistanceY", 0, 3, -1, 1, Q("48 mm")))
sketch12.addConstraint(Sketcher.Constraint("DistanceX", -1, 1, 1, 3, Q("85 mm")))
sketch12.addConstraint(Sketcher.Constraint("DistanceY", 1, 3, -1, 1, Q("3 mm")))
sketch12.addConstraint(Sketcher.Constraint("DistanceX", -1, 1, 2, 3, Q("95 mm")))
sketch12.addConstraint(Sketcher.Constraint("DistanceX", 0, 3, 3, 3, Q("55 mm")))
sketch12.addConstraint(Sketcher.Constraint("DistanceX", -1, 1, 0, 3, Q("62.5 mm")))
pocket5 = body.newObject("PartDesign::Pocket", "Pocket004")
pocket5.Profile = sketch12
pocket5.Type = "ThroughAll"

doc.recompute()
